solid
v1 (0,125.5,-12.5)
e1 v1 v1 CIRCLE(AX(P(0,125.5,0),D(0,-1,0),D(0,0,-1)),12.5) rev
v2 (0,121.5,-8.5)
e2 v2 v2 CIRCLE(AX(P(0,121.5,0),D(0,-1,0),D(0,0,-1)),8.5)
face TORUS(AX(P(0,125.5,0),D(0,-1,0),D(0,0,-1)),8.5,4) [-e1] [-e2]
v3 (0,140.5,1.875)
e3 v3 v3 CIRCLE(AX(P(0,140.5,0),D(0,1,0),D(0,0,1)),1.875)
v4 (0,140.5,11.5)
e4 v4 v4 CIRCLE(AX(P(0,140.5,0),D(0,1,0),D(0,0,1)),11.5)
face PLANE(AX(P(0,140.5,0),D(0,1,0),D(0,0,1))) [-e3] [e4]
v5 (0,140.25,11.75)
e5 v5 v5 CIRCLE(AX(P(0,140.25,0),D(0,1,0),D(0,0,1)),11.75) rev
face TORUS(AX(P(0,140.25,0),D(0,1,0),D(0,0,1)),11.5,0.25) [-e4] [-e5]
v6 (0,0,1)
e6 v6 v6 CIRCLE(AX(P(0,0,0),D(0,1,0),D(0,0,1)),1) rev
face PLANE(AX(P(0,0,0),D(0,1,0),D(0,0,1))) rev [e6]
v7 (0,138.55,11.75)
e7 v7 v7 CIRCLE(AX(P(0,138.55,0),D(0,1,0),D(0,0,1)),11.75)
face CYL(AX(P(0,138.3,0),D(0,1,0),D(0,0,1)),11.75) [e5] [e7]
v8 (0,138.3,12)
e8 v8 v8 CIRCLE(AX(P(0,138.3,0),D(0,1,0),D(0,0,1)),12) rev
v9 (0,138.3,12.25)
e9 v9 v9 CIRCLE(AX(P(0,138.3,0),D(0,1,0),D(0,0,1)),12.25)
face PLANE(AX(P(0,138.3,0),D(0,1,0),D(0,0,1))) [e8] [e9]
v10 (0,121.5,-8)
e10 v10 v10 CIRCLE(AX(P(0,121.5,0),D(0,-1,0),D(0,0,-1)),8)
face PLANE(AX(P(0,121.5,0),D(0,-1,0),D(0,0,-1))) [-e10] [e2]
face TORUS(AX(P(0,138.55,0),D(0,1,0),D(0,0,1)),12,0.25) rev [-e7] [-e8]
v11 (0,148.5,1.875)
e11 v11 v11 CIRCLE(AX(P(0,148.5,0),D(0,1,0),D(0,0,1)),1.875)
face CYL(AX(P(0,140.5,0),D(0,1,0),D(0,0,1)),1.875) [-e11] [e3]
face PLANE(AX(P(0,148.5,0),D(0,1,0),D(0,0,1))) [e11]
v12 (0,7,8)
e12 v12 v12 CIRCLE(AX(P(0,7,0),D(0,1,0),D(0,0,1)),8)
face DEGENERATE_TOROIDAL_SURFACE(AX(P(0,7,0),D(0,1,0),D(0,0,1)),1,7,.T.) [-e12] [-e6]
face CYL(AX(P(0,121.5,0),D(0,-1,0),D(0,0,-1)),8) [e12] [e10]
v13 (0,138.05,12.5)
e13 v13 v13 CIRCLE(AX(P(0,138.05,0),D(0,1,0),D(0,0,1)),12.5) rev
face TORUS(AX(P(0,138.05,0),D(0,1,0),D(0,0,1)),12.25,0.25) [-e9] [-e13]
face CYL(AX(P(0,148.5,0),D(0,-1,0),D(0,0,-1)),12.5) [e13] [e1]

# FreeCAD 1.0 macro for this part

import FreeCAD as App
import Part
import Sketcher

V = App.Vector
Q = App.Units.Quantity


def edges_at(feature, points):
    """Names of the edges that pass closest to the given points."""
    edges = feature.Shape.Edges
    near = lambda p: min(range(len(edges)), key=lambda i: edges[i].distToShape(Part.Vertex(*p))[0])
    return sorted({f"Edge{near(p) + 1}" for p in points})

doc = App.newDocument("Part")
body = doc.addObject("PartDesign::Body", "Body")

sketch1 = body.newObject("Sketcher::SketchObject", "Sketch")
sketch1.AttachmentSupport = (doc.getObject("XZ_Plane"), [""])
sketch1.MapMode = "FlatFace"
sketch1.addGeometry(Part.Circle(V(0, 0, 0), V(0, 0, 1), 12), False)
sketch1.addConstraint(Sketcher.Constraint("Coincident", 0, 3, -1, 1))
sketch1.addConstraint(Sketcher.Constraint("Diameter", 0, Q("25 mm")))
pad1 = body.newObject("PartDesign::Pad", "Pad")
pad1.Profile = sketch1
pad1.Length = 148.5
pad1.Reversed = True

sketch2 = body.newObject("Sketcher::SketchObject", "Sketch001")
sketch2.AttachmentSupport = (doc.getObject("XZ_Plane"), [""])
sketch2.MapMode = "FlatFace"
sketch2.addGeometry(Part.LineSegment(V(-29, 29, 0), V(-29, -29, 0)), False)
sketch2.addGeometry(Part.LineSegment(V(-29, -29, 0), V(29, -29, 0)), False)
sketch2.addGeometry(Part.LineSegment(V(29, -29, 0), V(29, 29, 0)), False)
sketch2.addGeometry(Part.LineSegment(V(29, 29, 0), V(-29, 29, 0)), False)
sketch2.addGeometry(Part.Circle(V(0, 0, 0), V(0, 0, 1), 8), False)
sketch2.addConstraint(Sketcher.Constraint("Coincident", 0, 2, 1, 1))
sketch2.addConstraint(Sketcher.Constraint("Coincident", 1, 2, 2, 1))
sketch2.addConstraint(Sketcher.Constraint("Coincident", 2, 2, 3, 1))
sketch2.addConstraint(Sketcher.Constraint("Coincident", 3, 2, 0, 1))
sketch2.addConstraint(Sketcher.Constraint("Vertical", 0))
sketch2.addConstraint(Sketcher.Constraint("Horizontal", 1))
sketch2.addConstraint(Sketcher.Constraint("Vertical", 2))
sketch2.addConstraint(Sketcher.Constraint("Horizontal", 3))
sketch2.addConstraint(Sketcher.Constraint("Coincident", 4, 3, -1, 1))
sketch2.addConstraint(Sketcher.Constraint("Symmetric", 0, 2, 2, 2, -1, 1))
sketch2.addConstraint(Sketcher.Constraint("Equal", 3, 0))
sketch2.addConstraint(Sketcher.Constraint("Diameter", 4, Q("16 mm")))
sketch2.addConstraint(Sketcher.Constraint("DistanceX", 1, 1, 1, 2, Q("57.53 mm")))
pocket1 = body.newObject("PartDesign::Pocket", "Pocket")
pocket1.Profile = sketch2
pocket1.Length = 121.5

sketch3 = body.newObject("Sketcher::SketchObject", "Sketch002")
sketch3.AttachmentSupport = (doc.getObject("XZ_Plane"), [""])
sketch3.MapMode = "FlatFace"
sketch3.AttachmentOffset = App.Placement(V(0, 0, -148.5), App.Rotation())
sketch3.addGeometry(Part.LineSegment(V(-28.8, -28.8, 0), V(-28.8, 28.8, 0)), False)
sketch3.addGeometry(Part.LineSegment(V(-28.8, 28.8, 0), V(28.8, 28.8, 0)), False)
sketch3.addGeometry(Part.LineSegment(V(28.8, 28.8, 0), V(28.8, -28.8, 0)), False)
sketch3.addGeometry(Part.LineSegment(V(28.8, -28.8, 0), V(-28.8, -28.8, 0)), False)
sketch3.addGeometry(Part.Circle(V(0, 0, 0), V(0, 0, 1), 1.9), False)
sketch3.addConstraint(Sketcher.Constraint("Coincident", 0, 2, 1, 1))
sketch3.addConstraint(Sketcher.Constraint("Coincident", 1, 2, 2, 1))
sketch3.addConstraint(Sketcher.Constraint("Coincident", 2, 2, 3, 1))
sketch3.addConstraint(Sketcher.Constraint("Coincident", 3, 2, 0, 1))
sketch3.addConstraint(Sketcher.Constraint("Vertical", 0))
sketch3.addConstraint(Sketcher.Constraint("Horizontal", 1))
sketch3.addConstraint(Sketcher.Constraint("Vertical", 2))
sketch3.addConstraint(Sketcher.Constraint("Horizontal", 3))
sketch3.addConstraint(Sketcher.Constraint("Coincident", 4, 3, -1, 1))
sketch3.addConstraint(Sketcher.Constraint("Symmetric", 0, 2, 2, 2, -1, 1))
sketch3.addConstraint(Sketcher.Constraint("Equal", 3, 0))
sketch3.addConstraint(Sketcher.Constraint("Diameter", 4, Q("3.75 mm")))
sketch3.addConstraint(Sketcher.Constraint("DistanceX", 1, 1, 1, 2, Q("57.53 mm")))
pocket2 = body.newObject("PartDesign::Pocket", "Pocket001")
pocket2.Profile = sketch3
pocket2.Length = 8
pocket2.Reversed = True
doc.recompute()

fillet = body.newObject("PartDesign::Fillet", "Fillet")
fillet.Base = (pocket2, edges_at(pocket2, [(0, 121.5, -12.5)]))
fillet.Radius = 4
doc.recompute()

fillet2 = body.newObject("PartDesign::Fillet", "Fillet001")
fillet2.Base = (fillet, edges_at(fillet, [(0, 0, 8)]))
fillet2.Radius = 7

sketch4 = body.newObject("Sketcher::SketchObject", "Sketch003")
sketch4.AttachmentSupport = (doc.getObject("XZ_Plane"), [""])
sketch4.MapMode = "FlatFace"
sketch4.AttachmentOffset = App.Placement(V(0, 0, -140.5), App.Rotation())
sketch4.addGeometry(Part.LineSegment(V(-29, -29, 0), V(-29, 29, 0)), False)
sketch4.addGeometry(Part.LineSegment(V(-29, 29, 0), V(29, 29, 0)), False)
sketch4.addGeometry(Part.LineSegment(V(29, 29, 0), V(29, -29, 0)), False)
sketch4.addGeometry(Part.LineSegment(V(29, -29, 0), V(-29, -29, 0)), False)
sketch4.addGeometry(Part.Circle(V(0, 0, 0), V(0, 0, 1), 12), False)
sketch4.addConstraint(Sketcher.Constraint("Coincident", 0, 2, 1, 1))
sketch4.addConstraint(Sketcher.Constraint("Coincident", 1, 2, 2, 1))
sketch4.addConstraint(Sketcher.Constraint("Coincident", 2, 2, 3, 1))
sketch4.addConstraint(Sketcher.Constraint("Coincident", 3, 2, 0, 1))
sketch4.addConstraint(Sketcher.Constraint("Vertical", 0))
sketch4.addConstraint(Sketcher.Constraint("Horizontal", 1))
sketch4.addConstraint(Sketcher.Constraint("Vertical", 2))
sketch4.addConstraint(Sketcher.Constraint("Horizontal", 3))
sketch4.addConstraint(Sketcher.Constraint("Coincident", 4, 3, -1, 1))
sketch4.addConstraint(Sketcher.Constraint("Symmetric", 0, 2, 2, 2, -1, 1))
sketch4.addConstraint(Sketcher.Constraint("Equal", 3, 0))
sketch4.addConstraint(Sketcher.Constraint("Diameter", 4, Q("23.5 mm")))
sketch4.addConstraint(Sketcher.Constraint("DistanceX", 1, 1, 1, 2, Q("57.53 mm")))
pocket3 = body.newObject("PartDesign::Pocket", "Pocket002")
pocket3.Profile = sketch4
pocket3.Length = 2.2
pocket3.Reversed = True
doc.recompute()

fillet3 = body.newObject("PartDesign::Fillet", "Fillet002")
fillet3.Base = (pocket3, edges_at(pocket3, [(0, 138.3, -11.75), (0, 138.3, -12.5), (0, 140.5, -11.75)]))
fillet3.Radius = 0.25

doc.recompute()
